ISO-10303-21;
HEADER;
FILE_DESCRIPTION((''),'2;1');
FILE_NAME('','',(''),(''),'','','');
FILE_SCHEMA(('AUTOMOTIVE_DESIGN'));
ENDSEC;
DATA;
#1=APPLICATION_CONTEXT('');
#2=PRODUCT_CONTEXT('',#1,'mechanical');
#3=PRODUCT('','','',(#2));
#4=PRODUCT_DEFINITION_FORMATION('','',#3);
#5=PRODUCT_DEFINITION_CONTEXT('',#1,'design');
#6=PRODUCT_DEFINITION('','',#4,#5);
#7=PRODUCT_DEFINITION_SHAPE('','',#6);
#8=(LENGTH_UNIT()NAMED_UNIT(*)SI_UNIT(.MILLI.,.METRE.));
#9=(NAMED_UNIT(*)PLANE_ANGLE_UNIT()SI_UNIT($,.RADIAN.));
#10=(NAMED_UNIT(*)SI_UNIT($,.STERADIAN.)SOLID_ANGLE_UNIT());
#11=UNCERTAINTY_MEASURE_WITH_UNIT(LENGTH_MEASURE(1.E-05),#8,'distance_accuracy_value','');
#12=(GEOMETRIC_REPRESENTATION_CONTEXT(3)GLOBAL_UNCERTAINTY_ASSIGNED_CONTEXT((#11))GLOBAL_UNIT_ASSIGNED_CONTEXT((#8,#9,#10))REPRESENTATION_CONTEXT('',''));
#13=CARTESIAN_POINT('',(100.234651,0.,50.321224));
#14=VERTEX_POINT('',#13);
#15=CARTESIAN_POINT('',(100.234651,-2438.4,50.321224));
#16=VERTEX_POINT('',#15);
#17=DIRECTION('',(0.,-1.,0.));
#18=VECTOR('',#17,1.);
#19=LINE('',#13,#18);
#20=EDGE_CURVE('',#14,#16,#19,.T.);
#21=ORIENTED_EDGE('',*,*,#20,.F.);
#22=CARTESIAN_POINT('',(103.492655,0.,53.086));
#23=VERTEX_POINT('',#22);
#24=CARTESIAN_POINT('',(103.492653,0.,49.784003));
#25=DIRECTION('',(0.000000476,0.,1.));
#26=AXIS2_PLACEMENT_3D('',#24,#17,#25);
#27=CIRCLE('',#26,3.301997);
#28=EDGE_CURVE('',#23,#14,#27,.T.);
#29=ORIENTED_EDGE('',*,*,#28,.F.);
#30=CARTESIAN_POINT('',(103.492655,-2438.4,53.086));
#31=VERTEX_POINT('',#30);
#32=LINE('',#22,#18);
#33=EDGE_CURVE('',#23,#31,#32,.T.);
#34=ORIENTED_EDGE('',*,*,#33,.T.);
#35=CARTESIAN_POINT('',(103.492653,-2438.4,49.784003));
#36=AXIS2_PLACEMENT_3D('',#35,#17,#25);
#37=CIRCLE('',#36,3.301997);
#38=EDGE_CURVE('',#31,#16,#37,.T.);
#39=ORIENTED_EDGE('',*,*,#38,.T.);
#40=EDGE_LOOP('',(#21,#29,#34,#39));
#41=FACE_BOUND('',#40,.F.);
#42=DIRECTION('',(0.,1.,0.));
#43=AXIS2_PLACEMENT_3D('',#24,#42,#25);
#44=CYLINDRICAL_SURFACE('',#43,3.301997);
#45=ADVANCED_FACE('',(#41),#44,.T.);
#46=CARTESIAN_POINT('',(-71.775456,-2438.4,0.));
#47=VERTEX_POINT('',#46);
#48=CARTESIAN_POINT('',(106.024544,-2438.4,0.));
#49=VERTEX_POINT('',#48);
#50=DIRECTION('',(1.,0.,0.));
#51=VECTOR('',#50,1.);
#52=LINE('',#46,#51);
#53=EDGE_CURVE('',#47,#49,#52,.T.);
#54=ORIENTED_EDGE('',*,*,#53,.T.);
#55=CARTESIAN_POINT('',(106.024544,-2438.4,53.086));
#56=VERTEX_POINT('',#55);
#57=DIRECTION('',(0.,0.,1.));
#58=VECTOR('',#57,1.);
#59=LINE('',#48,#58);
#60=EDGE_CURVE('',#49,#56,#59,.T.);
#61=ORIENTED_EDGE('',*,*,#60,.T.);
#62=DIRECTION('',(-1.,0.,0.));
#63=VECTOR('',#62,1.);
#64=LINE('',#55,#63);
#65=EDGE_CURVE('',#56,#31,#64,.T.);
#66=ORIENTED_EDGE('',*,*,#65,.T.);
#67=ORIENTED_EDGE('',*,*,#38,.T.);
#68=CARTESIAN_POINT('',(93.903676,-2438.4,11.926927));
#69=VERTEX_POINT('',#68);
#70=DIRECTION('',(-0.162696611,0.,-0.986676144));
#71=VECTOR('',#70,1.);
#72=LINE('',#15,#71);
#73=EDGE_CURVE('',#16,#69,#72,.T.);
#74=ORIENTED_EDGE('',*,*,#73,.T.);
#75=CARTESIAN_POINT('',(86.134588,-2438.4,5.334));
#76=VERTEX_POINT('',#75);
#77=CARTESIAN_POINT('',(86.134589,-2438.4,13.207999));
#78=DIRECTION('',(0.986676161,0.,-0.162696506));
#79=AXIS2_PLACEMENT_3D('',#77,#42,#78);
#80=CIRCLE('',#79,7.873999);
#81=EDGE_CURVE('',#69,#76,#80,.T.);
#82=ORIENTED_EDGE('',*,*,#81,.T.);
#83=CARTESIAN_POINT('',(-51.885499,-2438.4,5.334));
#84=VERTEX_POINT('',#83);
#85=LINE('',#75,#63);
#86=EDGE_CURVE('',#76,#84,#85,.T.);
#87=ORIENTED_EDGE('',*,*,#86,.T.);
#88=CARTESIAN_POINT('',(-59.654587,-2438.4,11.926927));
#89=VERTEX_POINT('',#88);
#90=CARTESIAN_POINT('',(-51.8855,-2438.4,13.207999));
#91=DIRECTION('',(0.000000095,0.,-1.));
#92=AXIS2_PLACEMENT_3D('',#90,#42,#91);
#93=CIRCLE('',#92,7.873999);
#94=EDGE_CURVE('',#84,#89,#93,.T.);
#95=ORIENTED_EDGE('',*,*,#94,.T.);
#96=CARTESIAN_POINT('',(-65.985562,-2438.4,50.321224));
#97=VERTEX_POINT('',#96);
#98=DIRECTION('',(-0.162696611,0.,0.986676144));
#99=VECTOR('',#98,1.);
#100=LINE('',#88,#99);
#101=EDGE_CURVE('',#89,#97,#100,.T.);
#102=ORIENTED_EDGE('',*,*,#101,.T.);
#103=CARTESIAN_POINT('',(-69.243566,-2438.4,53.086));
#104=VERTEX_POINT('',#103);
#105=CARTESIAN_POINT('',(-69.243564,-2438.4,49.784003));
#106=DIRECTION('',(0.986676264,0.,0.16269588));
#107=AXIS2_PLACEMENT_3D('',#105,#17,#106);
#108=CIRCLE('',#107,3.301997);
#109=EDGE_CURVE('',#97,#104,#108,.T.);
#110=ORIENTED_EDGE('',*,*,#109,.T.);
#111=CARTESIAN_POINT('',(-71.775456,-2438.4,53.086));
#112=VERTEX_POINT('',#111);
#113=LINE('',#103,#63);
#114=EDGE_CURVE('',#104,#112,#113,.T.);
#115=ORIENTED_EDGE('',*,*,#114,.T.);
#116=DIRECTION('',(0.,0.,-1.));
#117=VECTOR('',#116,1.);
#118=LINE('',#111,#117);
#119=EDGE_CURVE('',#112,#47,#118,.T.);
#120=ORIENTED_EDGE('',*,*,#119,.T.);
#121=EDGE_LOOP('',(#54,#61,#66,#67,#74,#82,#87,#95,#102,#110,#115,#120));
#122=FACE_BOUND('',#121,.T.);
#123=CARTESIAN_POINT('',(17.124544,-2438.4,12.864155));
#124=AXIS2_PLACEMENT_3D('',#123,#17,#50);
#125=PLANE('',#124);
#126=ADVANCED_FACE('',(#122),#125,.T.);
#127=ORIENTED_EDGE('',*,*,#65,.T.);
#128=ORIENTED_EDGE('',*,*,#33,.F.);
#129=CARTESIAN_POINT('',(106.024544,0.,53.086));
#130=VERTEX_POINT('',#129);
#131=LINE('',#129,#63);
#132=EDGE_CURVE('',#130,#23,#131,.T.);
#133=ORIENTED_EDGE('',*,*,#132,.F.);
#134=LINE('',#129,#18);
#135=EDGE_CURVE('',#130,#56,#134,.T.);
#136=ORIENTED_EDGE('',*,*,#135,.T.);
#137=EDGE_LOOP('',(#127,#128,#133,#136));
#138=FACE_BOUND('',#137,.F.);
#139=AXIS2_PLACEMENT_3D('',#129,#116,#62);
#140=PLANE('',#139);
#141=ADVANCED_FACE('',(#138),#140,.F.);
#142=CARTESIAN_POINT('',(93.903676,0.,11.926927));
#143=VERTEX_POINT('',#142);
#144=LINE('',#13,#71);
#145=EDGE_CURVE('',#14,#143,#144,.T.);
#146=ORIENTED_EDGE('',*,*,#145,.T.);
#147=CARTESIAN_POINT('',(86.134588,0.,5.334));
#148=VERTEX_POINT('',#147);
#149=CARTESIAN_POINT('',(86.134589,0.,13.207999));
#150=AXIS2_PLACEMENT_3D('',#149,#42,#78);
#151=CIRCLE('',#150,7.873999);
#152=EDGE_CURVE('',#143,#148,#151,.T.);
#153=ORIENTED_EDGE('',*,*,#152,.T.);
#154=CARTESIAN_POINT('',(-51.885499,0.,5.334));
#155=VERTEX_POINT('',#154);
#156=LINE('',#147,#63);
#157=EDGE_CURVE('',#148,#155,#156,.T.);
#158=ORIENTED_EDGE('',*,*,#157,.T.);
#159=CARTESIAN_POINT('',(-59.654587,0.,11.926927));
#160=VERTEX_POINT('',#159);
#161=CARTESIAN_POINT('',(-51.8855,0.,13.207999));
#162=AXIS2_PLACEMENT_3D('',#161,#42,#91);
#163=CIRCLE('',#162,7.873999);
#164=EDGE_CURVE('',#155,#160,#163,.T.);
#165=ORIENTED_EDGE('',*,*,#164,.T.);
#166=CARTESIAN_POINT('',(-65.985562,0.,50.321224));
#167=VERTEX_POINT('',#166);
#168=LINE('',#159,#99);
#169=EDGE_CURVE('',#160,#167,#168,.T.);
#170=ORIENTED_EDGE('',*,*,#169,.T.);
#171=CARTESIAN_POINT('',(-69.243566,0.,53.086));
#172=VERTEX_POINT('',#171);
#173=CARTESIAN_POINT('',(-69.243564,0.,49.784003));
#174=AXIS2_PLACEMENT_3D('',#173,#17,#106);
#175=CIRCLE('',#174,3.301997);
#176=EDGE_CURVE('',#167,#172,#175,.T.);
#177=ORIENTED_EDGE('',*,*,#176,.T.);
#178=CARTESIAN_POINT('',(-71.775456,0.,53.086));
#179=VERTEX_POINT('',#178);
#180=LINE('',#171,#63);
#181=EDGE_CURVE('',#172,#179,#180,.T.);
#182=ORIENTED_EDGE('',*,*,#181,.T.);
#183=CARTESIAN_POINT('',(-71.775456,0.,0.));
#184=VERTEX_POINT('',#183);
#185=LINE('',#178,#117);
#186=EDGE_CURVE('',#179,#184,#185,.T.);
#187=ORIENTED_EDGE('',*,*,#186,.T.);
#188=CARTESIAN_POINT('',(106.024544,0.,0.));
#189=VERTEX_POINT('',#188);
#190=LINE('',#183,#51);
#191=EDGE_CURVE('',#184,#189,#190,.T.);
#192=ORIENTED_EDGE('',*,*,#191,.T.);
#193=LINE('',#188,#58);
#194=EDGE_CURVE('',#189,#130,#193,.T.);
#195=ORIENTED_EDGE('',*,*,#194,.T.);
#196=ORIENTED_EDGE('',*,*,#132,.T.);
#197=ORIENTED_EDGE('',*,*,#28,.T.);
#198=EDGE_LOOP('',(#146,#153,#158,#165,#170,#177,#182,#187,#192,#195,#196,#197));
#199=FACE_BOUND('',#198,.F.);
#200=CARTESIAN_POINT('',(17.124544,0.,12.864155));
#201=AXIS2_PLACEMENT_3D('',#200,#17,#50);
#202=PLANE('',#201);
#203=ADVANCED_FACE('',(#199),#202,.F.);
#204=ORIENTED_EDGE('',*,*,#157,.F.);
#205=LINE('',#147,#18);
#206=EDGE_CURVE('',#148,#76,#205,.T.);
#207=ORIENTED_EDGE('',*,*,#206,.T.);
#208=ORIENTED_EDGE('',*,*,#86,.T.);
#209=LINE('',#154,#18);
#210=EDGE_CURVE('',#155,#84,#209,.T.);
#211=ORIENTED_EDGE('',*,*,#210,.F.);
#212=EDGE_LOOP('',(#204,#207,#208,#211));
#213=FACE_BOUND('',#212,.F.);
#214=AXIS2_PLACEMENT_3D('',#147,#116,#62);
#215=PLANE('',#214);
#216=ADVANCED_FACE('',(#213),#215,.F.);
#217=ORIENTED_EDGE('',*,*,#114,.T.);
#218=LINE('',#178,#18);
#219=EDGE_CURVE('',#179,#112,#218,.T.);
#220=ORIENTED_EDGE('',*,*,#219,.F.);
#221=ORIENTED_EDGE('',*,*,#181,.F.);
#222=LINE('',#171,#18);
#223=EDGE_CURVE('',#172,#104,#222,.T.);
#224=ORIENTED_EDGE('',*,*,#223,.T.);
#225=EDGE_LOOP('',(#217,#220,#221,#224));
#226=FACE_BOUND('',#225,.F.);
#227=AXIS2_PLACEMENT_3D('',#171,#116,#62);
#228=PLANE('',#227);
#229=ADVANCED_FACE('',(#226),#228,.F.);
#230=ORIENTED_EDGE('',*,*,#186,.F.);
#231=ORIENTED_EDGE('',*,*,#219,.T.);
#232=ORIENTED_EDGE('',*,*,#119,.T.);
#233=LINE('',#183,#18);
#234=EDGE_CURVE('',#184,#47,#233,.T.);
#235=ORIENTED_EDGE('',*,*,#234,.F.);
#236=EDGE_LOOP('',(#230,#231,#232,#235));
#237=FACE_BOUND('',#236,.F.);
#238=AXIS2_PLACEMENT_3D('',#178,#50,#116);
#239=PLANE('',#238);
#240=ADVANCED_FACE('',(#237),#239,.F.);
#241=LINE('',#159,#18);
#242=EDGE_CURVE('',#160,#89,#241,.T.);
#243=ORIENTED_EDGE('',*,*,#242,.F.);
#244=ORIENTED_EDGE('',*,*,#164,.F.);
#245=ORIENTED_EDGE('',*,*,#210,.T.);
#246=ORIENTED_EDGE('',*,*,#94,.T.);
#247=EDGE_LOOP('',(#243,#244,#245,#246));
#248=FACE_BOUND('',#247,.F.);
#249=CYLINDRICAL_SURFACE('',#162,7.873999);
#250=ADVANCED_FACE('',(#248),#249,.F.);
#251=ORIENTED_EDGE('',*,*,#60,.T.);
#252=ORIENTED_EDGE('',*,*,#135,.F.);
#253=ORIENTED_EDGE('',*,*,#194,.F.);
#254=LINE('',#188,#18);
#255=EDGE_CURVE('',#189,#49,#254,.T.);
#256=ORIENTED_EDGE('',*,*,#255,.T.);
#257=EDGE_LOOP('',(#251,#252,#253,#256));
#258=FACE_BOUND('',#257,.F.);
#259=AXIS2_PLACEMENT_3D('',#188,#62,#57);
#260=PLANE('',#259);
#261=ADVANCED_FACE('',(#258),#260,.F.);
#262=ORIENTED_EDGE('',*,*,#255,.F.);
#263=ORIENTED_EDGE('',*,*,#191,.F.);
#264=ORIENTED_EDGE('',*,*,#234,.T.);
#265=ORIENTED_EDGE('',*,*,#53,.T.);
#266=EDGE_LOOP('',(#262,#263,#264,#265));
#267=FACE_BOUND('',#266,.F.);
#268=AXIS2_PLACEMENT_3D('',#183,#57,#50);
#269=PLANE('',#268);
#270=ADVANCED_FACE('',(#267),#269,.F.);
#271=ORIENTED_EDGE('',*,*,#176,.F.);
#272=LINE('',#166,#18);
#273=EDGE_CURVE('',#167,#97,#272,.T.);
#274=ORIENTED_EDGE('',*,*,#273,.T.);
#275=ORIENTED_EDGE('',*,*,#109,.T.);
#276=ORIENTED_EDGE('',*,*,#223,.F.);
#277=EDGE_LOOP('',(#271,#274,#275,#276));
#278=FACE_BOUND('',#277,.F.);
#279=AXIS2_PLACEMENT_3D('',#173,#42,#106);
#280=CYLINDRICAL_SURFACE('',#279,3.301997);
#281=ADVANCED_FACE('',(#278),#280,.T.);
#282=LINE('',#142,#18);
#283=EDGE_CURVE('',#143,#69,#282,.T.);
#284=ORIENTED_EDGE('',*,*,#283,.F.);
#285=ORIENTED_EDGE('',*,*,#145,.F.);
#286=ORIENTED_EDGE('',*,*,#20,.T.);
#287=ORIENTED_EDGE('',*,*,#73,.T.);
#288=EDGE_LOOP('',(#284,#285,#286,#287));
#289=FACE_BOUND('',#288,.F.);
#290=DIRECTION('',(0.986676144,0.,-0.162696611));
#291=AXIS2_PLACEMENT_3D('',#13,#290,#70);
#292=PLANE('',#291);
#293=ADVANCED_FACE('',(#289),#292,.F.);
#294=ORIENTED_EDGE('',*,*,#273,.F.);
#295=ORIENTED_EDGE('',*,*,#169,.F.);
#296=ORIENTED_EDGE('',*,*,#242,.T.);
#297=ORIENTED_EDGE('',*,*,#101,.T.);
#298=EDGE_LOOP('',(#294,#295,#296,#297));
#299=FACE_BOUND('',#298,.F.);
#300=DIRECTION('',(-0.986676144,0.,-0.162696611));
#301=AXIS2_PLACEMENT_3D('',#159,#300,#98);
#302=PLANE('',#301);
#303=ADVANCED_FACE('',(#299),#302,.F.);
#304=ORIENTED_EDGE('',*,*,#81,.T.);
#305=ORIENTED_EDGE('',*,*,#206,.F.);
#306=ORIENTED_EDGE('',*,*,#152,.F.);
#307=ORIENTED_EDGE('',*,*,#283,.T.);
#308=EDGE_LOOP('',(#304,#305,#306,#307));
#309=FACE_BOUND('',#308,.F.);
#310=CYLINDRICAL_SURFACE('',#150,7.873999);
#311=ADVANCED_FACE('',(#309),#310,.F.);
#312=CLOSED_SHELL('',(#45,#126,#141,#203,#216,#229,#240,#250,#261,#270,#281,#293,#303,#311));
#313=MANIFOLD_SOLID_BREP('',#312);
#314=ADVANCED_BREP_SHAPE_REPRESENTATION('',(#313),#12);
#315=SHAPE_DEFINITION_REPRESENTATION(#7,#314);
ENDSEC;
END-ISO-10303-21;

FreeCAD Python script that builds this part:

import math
import FreeCAD as App
import Part
import Sketcher

V = App.Vector
Q = App.Units.Quantity

doc = App.newDocument("Part")
body = doc.addObject("PartDesign::Body", "Body")

sketch1 = body.newObject("Sketcher::SketchObject", "Sketch")
sketch1.AttachmentSupport = (doc.getObject("XZ_Plane"), [""])
sketch1.MapMode = "FlatFace"
sketch1.addGeometry(Part.LineSegment(V(-71.8, 0, 0), V(106, 0, 0)), False)
sketch1.addGeometry(Part.LineSegment(V(106, 0, 0), V(106, 53.1, 0)), False)
sketch1.addGeometry(Part.LineSegment(V(106, 53.1, 0), V(103.5, 53.1, 0)), False)
sketch1.addGeometry(Part.ArcOfCircle(Part.Circle(V(103.5, 49.8, 0), V(0, 0, 1), 3.3), math.radians(90), math.radians(171)), False)
sketch1.addGeometry(Part.LineSegment(V(100.2, 50.3, 0), V(93.9, 11.9, 0)), False)
sketch1.addGeometry(Part.ArcOfCircle(Part.Circle(V(86.1, 13.2, 0), V(0, 0, 1), 7.9), math.radians(-90), math.radians(-9)), False)
sketch1.addGeometry(Part.LineSegment(V(86.1, 5.3, 0), V(-51.9, 5.3, 0)), False)
sketch1.addGeometry(Part.ArcOfCircle(Part.Circle(V(-51.9, 13.2, 0), V(0, 0, 1), 7.9), math.radians(-171), math.radians(-90)), False)
sketch1.addGeometry(Part.LineSegment(V(-59.7, 11.9, 0), V(-66, 50.3, 0)), False)
sketch1.addGeometry(Part.ArcOfCircle(Part.Circle(V(-69.2, 49.8, 0), V(0, 0, 1), 3.3), math.radians(9), math.radians(90)), False)
sketch1.addGeometry(Part.LineSegment(V(-69.2, 53.1, 0), V(-71.8, 53.1, 0)), False)
sketch1.addGeometry(Part.LineSegment(V(-71.8, 53.1, 0), V(-71.8, 0, 0)), False)
sketch1.addConstraint(Sketcher.Constraint("Coincident", 0, 2, 1, 1))
sketch1.addConstraint(Sketcher.Constraint("Coincident", 1, 2, 2, 1))
sketch1.addConstraint(Sketcher.Constraint("Tangent", 2, 2, 3, 1))
sketch1.addConstraint(Sketcher.Constraint("Tangent", 3, 2, 4, 1))
sketch1.addConstraint(Sketcher.Constraint("Tangent", 4, 2, 5, 2))
sketch1.addConstraint(Sketcher.Constraint("Tangent", 5, 1, 6, 1))
sketch1.addConstraint(Sketcher.Constraint("Tangent", 6, 2, 7, 2))
sketch1.addConstraint(Sketcher.Constraint("Tangent", 7, 1, 8, 1))
sketch1.addConstraint(Sketcher.Constraint("Tangent", 8, 2, 9, 1))
sketch1.addConstraint(Sketcher.Constraint("Tangent", 9, 2, 10, 1))
sketch1.addConstraint(Sketcher.Constraint("Coincident", 10, 2, 11, 1))
sketch1.addConstraint(Sketcher.Constraint("Coincident", 11, 2, 0, 1))
sketch1.addConstraint(Sketcher.Constraint("Horizontal", 0))
sketch1.addConstraint(Sketcher.Constraint("Vertical", 1))
sketch1.addConstraint(Sketcher.Constraint("Horizontal", 2))
sketch1.addConstraint(Sketcher.Constraint("Horizontal", 6))
sketch1.addConstraint(Sketcher.Constraint("Horizontal", 10))
sketch1.addConstraint(Sketcher.Constraint("Vertical", 11))
sketch1.addConstraint(Sketcher.Constraint("Equal", 5, 7))
sketch1.addConstraint(Sketcher.Constraint("Equal", 3, 9))
sketch1.addConstraint(Sketcher.Constraint("PointOnObject", 0, 2, -1))
sketch1.addConstraint(Sketcher.Constraint("Horizontal", 3, 3, 9, 3))
sketch1.addConstraint(Sketcher.Constraint("Horizontal", 4, 2, 7, 1))
sketch1.addConstraint(Sketcher.Constraint("Equal", 2, 10))
sketch1.addConstraint(Sketcher.Constraint("DistanceX", 0, 1, 0, 2, Q("7 in")))
sketch1.addConstraint(Sketcher.Constraint("Radius", 3, Q("0.1299999 in")))
sketch1.addConstraint(Sketcher.Constraint("Radius", 5, Q("0.31 in")))
sketch1.addConstraint(Sketcher.Constraint("DistanceY", 1, 1, 1, 2, Q("2.09 in")))
sketch1.addConstraint(Sketcher.Constraint("DistanceY", -1, 1, 5, 3, Q("0.52 in")))
sketch1.addConstraint(Sketcher.Constraint("DistanceX", 2, 2, 2, 1, Q("2.531889 mm")))
sketch1.addConstraint(Sketcher.Constraint("DistanceX", 7, 3, -1, 1, Q("51.8855 mm")))
sketch1.addConstraint(Sketcher.Constraint("DistanceX", 6, 2, 6, 1, Q("138.020087 mm")))
pad1 = body.newObject("PartDesign::Pad", "Pad")
pad1.Profile = sketch1
pad1.Length = Q("96 in")

doc.recompute()
